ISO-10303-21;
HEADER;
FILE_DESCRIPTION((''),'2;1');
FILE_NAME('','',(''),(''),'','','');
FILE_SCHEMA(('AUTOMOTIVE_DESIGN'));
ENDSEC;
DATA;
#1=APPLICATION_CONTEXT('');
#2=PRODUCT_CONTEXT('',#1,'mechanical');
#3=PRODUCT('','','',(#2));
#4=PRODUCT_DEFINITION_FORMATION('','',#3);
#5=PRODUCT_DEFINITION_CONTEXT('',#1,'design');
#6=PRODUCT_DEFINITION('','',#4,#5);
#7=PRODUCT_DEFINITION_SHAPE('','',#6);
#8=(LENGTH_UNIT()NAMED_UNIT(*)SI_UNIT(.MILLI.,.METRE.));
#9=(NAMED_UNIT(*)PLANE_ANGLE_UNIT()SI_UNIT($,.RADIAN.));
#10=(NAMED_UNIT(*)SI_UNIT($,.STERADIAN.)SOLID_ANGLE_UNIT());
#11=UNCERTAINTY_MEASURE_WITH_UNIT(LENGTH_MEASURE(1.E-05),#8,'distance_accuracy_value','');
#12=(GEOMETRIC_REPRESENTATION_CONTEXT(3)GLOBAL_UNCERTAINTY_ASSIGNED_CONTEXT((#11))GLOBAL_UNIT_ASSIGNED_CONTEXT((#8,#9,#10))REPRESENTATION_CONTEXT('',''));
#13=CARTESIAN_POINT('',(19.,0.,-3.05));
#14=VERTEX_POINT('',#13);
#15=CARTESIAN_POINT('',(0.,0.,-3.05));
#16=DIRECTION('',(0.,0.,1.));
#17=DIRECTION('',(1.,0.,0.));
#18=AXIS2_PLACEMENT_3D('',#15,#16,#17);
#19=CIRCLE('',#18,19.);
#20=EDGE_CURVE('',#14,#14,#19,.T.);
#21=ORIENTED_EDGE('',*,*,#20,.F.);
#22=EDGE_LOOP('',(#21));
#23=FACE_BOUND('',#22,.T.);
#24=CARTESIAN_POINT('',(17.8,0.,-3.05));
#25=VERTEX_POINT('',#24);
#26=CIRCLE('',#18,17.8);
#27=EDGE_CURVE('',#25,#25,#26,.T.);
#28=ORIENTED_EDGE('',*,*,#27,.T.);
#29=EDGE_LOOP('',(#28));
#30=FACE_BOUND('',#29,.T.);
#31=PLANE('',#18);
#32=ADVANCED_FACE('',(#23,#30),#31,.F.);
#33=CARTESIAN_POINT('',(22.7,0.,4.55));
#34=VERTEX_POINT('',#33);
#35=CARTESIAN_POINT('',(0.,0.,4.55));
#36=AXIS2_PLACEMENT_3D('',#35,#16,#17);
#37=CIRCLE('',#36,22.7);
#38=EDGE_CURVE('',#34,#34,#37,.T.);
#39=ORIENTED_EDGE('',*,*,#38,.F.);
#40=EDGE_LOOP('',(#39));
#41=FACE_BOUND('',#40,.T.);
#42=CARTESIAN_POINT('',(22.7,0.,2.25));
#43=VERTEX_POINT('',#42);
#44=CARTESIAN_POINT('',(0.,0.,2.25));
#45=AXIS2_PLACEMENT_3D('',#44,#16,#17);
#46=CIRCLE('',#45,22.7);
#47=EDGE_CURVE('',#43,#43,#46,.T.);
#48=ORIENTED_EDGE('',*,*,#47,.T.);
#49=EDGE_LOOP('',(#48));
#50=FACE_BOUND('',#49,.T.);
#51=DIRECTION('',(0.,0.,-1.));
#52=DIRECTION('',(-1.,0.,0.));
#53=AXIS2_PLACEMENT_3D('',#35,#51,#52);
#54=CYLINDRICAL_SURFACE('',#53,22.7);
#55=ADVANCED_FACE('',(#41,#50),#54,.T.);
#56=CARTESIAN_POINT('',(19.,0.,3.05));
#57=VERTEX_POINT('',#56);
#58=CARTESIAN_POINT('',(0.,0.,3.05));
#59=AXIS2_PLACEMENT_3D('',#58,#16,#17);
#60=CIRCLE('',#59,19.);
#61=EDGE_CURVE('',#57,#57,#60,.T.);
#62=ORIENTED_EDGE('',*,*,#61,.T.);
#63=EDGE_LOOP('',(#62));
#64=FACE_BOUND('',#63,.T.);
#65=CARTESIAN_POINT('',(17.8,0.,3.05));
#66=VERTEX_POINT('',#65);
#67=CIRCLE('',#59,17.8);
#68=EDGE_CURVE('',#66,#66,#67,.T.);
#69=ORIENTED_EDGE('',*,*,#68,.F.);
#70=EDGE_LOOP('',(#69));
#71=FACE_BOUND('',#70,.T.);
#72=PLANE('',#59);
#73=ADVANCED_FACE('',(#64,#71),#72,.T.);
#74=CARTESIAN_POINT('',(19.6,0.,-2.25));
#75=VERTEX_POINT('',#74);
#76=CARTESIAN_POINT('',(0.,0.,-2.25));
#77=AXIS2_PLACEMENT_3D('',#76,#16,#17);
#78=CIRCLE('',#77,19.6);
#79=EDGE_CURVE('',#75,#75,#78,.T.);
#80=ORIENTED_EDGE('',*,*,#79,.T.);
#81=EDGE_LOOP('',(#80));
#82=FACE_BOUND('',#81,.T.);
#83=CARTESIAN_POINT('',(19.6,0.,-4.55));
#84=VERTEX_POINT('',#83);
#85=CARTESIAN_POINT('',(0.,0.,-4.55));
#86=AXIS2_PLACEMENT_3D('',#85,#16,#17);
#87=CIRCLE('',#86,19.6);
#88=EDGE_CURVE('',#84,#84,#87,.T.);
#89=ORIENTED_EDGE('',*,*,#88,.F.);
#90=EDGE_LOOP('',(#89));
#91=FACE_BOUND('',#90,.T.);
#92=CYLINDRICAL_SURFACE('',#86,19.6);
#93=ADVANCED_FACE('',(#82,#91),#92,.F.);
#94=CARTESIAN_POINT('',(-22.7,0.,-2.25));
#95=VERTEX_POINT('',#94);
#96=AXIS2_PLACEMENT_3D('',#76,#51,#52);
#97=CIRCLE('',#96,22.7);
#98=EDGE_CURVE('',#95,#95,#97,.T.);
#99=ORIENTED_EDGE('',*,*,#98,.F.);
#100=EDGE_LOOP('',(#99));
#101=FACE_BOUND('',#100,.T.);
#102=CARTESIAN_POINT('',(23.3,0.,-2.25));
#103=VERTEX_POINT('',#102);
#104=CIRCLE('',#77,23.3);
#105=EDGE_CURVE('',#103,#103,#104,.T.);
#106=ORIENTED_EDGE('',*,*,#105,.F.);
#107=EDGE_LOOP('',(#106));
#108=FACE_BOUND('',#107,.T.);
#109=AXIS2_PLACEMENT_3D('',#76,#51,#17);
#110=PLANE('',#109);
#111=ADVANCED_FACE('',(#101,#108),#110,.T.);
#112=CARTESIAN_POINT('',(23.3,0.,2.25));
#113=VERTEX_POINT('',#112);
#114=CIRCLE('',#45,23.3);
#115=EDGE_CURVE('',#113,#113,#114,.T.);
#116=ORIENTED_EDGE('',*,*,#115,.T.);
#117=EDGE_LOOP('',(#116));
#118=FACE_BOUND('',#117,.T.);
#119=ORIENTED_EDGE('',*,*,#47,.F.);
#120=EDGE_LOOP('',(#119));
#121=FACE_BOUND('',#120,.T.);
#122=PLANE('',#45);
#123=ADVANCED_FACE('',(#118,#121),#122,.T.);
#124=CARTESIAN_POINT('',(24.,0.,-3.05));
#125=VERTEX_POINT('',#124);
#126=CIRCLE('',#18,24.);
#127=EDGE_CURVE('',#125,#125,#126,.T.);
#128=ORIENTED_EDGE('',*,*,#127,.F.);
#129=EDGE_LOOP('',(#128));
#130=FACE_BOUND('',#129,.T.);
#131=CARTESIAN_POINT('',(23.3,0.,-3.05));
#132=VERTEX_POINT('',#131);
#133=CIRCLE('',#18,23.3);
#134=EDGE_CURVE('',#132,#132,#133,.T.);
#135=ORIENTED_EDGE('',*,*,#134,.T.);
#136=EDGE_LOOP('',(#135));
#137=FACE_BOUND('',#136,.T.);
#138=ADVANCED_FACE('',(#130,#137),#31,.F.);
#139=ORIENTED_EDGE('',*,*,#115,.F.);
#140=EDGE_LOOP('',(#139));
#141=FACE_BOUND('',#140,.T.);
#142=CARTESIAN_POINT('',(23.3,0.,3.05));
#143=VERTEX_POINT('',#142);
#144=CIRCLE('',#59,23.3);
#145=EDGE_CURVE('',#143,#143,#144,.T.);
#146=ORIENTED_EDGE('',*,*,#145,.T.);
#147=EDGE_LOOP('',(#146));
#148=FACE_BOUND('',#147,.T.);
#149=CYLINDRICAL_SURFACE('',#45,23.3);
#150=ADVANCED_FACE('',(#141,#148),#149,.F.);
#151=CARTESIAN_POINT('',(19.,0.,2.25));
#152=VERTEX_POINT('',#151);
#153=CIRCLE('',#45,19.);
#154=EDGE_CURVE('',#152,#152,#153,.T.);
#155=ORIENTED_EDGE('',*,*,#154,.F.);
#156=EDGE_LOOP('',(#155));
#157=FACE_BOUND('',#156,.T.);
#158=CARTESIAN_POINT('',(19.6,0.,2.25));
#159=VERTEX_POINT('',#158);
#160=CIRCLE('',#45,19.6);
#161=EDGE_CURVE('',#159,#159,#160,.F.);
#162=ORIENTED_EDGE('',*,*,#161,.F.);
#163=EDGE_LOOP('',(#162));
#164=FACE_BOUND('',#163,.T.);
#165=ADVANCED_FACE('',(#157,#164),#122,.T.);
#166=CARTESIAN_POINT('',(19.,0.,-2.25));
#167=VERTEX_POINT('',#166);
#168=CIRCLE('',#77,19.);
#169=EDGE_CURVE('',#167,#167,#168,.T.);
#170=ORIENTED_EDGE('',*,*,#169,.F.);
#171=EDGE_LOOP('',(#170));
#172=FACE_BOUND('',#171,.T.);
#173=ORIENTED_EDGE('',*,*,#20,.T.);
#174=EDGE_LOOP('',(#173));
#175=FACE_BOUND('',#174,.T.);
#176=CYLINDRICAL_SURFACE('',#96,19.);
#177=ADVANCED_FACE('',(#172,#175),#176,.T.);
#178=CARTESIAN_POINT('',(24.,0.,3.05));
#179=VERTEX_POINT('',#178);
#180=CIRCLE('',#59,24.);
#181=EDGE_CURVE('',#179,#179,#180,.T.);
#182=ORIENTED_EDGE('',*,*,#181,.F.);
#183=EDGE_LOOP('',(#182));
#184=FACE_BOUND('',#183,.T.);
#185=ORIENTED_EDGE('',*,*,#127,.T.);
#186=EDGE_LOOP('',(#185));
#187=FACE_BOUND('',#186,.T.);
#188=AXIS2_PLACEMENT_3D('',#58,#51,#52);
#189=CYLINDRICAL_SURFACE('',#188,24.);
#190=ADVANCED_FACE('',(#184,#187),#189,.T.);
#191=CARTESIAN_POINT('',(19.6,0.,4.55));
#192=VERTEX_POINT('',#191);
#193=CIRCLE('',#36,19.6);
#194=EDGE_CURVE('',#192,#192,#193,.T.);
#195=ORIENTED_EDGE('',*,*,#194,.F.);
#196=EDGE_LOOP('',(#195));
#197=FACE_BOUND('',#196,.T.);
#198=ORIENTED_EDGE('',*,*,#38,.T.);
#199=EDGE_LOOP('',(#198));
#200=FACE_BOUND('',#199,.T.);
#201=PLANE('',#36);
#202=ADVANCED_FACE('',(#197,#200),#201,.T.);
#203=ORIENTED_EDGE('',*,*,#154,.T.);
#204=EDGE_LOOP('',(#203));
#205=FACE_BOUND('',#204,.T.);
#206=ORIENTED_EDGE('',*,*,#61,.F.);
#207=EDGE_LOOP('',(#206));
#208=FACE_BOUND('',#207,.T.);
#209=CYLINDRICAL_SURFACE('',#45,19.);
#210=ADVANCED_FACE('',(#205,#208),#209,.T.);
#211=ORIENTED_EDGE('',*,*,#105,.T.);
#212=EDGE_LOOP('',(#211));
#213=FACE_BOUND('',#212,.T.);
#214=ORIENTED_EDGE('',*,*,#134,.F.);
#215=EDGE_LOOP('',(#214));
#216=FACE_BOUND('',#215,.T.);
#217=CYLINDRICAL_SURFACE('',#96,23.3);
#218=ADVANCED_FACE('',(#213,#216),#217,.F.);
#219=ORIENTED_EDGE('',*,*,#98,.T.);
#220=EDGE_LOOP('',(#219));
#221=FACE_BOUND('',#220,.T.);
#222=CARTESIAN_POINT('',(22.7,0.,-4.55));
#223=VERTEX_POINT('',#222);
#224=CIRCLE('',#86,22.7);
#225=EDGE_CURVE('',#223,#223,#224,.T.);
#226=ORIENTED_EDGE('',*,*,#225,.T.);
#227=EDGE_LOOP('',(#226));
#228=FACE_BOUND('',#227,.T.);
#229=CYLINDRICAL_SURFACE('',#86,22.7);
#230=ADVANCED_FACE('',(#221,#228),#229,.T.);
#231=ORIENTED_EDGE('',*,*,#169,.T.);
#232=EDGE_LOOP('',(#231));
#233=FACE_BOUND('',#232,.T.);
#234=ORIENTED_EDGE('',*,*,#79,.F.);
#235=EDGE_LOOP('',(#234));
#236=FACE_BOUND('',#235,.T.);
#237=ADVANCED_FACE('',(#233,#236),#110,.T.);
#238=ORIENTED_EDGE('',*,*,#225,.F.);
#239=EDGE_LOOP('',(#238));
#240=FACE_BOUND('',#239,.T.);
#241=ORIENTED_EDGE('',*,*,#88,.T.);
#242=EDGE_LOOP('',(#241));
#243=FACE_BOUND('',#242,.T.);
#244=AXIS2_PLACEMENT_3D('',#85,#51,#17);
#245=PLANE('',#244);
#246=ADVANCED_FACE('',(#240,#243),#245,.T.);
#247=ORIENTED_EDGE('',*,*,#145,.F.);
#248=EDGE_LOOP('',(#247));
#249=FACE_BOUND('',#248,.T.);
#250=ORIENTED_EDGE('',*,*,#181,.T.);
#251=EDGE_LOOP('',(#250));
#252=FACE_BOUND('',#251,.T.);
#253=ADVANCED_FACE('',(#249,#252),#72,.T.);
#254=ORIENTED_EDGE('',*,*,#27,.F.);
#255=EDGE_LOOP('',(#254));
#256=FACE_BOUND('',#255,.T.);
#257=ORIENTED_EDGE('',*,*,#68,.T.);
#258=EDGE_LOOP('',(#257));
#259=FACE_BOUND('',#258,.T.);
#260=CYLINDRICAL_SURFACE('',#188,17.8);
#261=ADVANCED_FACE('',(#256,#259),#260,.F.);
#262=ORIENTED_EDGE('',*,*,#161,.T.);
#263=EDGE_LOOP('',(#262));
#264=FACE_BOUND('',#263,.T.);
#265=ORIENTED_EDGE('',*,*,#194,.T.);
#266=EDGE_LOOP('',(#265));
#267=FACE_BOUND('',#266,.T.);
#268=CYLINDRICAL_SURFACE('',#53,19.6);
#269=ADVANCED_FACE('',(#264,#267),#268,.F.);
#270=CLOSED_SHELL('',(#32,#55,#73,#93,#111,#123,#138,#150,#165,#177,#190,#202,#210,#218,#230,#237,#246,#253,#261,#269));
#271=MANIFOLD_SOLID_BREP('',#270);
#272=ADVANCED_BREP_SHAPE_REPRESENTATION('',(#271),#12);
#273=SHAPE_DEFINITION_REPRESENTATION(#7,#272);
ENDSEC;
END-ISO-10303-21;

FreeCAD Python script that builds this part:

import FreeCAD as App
import Part
import Sketcher

V = App.Vector

doc = App.newDocument("Part")
params = doc.addObject("Spreadsheet::Sheet", "Params")
for row, (alias, value) in enumerate([
    ("sketch1_diameter", "48 mm"),
    ("sketch1_diameter2", "35.6 mm"),
    ("pad1_length", "6.1 mm"),
    ("sketch2_diameter", "38 mm"),
    ("sketch2_diameter2", "46.6 mm"),
    ("pocket1_length", "0.8 mm"),
    ("sketch3_diameter", "45.4 mm"),
    ("sketch3_diameter2", "39.2 mm"),
    ("pad2_length", "2.3 mm"),
], start=1):
    params.set(f"A{row}", alias)
    params.set(f"B{row}", "=" + value)
    params.setAlias(f"B{row}", alias)

body = doc.addObject("PartDesign::Body", "Body")

# Sketch on XY plane
sketch1 = doc.addObject("Sketcher::SketchObject", "Sketch")
body.addObject(sketch1)
sketch1.AttachmentSupport = (doc.XY_Plane, [""])
sketch1.MapMode = "FlatFace"
sketch1.addGeometry([
    Part.Circle(V(0, 0, 0), V(0, 0, 1), 24),
    Part.Circle(V(0, 0, 0), V(0, 0, 1), 17.8),
], False)
sketch1.addConstraint([
    Sketcher.Constraint("Coincident", 0, 3, -1, 1),
    Sketcher.Constraint("Coincident", 1, 3, -1, 1),
    Sketcher.Constraint("Diameter", 0, 48.0),
    Sketcher.Constraint("Diameter", 1, 35.6),
])
sketch1.setExpression("Constraints[2]", "Params.sketch1_diameter")
sketch1.setExpression("Constraints[3]", "Params.sketch1_diameter2")
pad1 = doc.addObject("PartDesign::Pad", "Pad")
body.addObject(pad1)
pad1.Profile = sketch1
pad1.setExpression("Length", "Params.pad1_length")
pad1.Midplane = True

# Sketch on XY plane
sketch2 = doc.addObject("Sketcher::SketchObject", "Sketch001")
body.addObject(sketch2)
sketch2.AttachmentSupport = (doc.XY_Plane, [""])
sketch2.MapMode = "FlatFace"
sketch2.AttachmentOffset = App.Placement(V(0, 0, 3.05), App.Rotation())
sketch2.addGeometry([
    Part.Circle(V(0, 0, 0), V(0, 0, 1), 23.3),
    Part.Circle(V(0, 0, 0), V(0, 0, 1), 19),
], False)
sketch2.addConstraint([
    Sketcher.Constraint("Coincident", 0, 3, -1, 1),
    Sketcher.Constraint("Coincident", 1, 3, -1, 1),
    Sketcher.Constraint("Diameter", 1, 38.0),
    Sketcher.Constraint("Diameter", 0, 46.6),
])
sketch2.setExpression("Constraints[2]", "Params.sketch2_diameter")
sketch2.setExpression("Constraints[3]", "Params.sketch2_diameter2")
pocket1 = doc.addObject("PartDesign::Pocket", "Pocket")
body.addObject(pocket1)
pocket1.Profile = sketch2
pocket1.setExpression("Length", "Params.pocket1_length")

# Sketch on XY plane
sketch3 = doc.addObject("Sketcher::SketchObject", "Sketch002")
body.addObject(sketch3)
sketch3.AttachmentSupport = (doc.XY_Plane, [""])
sketch3.MapMode = "FlatFace"
sketch3.AttachmentOffset = App.Placement(V(0, 0, 2.25), App.Rotation())
sketch3.addGeometry([
    Part.Circle(V(0, 0, 0), V(0, 0, 1), 22.7),
    Part.Circle(V(0, 0, 0), V(0, 0, 1), 19.6),
], False)
sketch3.addConstraint([
    Sketcher.Constraint("Coincident", 0, 3, -1, 1),
    Sketcher.Constraint("Coincident", 1, 3, -1, 1),
    Sketcher.Constraint("Diameter", 0, 45.4),
    Sketcher.Constraint("Diameter", 1, 39.2),
])
sketch3.setExpression("Constraints[2]", "Params.sketch3_diameter")
sketch3.setExpression("Constraints[3]", "Params.sketch3_diameter2")
pad2 = doc.addObject("PartDesign::Pad", "Pad001")
body.addObject(pad2)
pad2.Profile = sketch3
pad2.setExpression("Length", "Params.pad2_length")
doc.recompute()

mirrored = doc.addObject("PartDesign::Mirrored", "Mirrored")
body.addObject(mirrored)
mirrored.Originals = [pocket1, pad2]
mirrored.MirrorPlane = (doc.XY_Plane, [""])
body.Tip = mirrored

doc.recompute()
